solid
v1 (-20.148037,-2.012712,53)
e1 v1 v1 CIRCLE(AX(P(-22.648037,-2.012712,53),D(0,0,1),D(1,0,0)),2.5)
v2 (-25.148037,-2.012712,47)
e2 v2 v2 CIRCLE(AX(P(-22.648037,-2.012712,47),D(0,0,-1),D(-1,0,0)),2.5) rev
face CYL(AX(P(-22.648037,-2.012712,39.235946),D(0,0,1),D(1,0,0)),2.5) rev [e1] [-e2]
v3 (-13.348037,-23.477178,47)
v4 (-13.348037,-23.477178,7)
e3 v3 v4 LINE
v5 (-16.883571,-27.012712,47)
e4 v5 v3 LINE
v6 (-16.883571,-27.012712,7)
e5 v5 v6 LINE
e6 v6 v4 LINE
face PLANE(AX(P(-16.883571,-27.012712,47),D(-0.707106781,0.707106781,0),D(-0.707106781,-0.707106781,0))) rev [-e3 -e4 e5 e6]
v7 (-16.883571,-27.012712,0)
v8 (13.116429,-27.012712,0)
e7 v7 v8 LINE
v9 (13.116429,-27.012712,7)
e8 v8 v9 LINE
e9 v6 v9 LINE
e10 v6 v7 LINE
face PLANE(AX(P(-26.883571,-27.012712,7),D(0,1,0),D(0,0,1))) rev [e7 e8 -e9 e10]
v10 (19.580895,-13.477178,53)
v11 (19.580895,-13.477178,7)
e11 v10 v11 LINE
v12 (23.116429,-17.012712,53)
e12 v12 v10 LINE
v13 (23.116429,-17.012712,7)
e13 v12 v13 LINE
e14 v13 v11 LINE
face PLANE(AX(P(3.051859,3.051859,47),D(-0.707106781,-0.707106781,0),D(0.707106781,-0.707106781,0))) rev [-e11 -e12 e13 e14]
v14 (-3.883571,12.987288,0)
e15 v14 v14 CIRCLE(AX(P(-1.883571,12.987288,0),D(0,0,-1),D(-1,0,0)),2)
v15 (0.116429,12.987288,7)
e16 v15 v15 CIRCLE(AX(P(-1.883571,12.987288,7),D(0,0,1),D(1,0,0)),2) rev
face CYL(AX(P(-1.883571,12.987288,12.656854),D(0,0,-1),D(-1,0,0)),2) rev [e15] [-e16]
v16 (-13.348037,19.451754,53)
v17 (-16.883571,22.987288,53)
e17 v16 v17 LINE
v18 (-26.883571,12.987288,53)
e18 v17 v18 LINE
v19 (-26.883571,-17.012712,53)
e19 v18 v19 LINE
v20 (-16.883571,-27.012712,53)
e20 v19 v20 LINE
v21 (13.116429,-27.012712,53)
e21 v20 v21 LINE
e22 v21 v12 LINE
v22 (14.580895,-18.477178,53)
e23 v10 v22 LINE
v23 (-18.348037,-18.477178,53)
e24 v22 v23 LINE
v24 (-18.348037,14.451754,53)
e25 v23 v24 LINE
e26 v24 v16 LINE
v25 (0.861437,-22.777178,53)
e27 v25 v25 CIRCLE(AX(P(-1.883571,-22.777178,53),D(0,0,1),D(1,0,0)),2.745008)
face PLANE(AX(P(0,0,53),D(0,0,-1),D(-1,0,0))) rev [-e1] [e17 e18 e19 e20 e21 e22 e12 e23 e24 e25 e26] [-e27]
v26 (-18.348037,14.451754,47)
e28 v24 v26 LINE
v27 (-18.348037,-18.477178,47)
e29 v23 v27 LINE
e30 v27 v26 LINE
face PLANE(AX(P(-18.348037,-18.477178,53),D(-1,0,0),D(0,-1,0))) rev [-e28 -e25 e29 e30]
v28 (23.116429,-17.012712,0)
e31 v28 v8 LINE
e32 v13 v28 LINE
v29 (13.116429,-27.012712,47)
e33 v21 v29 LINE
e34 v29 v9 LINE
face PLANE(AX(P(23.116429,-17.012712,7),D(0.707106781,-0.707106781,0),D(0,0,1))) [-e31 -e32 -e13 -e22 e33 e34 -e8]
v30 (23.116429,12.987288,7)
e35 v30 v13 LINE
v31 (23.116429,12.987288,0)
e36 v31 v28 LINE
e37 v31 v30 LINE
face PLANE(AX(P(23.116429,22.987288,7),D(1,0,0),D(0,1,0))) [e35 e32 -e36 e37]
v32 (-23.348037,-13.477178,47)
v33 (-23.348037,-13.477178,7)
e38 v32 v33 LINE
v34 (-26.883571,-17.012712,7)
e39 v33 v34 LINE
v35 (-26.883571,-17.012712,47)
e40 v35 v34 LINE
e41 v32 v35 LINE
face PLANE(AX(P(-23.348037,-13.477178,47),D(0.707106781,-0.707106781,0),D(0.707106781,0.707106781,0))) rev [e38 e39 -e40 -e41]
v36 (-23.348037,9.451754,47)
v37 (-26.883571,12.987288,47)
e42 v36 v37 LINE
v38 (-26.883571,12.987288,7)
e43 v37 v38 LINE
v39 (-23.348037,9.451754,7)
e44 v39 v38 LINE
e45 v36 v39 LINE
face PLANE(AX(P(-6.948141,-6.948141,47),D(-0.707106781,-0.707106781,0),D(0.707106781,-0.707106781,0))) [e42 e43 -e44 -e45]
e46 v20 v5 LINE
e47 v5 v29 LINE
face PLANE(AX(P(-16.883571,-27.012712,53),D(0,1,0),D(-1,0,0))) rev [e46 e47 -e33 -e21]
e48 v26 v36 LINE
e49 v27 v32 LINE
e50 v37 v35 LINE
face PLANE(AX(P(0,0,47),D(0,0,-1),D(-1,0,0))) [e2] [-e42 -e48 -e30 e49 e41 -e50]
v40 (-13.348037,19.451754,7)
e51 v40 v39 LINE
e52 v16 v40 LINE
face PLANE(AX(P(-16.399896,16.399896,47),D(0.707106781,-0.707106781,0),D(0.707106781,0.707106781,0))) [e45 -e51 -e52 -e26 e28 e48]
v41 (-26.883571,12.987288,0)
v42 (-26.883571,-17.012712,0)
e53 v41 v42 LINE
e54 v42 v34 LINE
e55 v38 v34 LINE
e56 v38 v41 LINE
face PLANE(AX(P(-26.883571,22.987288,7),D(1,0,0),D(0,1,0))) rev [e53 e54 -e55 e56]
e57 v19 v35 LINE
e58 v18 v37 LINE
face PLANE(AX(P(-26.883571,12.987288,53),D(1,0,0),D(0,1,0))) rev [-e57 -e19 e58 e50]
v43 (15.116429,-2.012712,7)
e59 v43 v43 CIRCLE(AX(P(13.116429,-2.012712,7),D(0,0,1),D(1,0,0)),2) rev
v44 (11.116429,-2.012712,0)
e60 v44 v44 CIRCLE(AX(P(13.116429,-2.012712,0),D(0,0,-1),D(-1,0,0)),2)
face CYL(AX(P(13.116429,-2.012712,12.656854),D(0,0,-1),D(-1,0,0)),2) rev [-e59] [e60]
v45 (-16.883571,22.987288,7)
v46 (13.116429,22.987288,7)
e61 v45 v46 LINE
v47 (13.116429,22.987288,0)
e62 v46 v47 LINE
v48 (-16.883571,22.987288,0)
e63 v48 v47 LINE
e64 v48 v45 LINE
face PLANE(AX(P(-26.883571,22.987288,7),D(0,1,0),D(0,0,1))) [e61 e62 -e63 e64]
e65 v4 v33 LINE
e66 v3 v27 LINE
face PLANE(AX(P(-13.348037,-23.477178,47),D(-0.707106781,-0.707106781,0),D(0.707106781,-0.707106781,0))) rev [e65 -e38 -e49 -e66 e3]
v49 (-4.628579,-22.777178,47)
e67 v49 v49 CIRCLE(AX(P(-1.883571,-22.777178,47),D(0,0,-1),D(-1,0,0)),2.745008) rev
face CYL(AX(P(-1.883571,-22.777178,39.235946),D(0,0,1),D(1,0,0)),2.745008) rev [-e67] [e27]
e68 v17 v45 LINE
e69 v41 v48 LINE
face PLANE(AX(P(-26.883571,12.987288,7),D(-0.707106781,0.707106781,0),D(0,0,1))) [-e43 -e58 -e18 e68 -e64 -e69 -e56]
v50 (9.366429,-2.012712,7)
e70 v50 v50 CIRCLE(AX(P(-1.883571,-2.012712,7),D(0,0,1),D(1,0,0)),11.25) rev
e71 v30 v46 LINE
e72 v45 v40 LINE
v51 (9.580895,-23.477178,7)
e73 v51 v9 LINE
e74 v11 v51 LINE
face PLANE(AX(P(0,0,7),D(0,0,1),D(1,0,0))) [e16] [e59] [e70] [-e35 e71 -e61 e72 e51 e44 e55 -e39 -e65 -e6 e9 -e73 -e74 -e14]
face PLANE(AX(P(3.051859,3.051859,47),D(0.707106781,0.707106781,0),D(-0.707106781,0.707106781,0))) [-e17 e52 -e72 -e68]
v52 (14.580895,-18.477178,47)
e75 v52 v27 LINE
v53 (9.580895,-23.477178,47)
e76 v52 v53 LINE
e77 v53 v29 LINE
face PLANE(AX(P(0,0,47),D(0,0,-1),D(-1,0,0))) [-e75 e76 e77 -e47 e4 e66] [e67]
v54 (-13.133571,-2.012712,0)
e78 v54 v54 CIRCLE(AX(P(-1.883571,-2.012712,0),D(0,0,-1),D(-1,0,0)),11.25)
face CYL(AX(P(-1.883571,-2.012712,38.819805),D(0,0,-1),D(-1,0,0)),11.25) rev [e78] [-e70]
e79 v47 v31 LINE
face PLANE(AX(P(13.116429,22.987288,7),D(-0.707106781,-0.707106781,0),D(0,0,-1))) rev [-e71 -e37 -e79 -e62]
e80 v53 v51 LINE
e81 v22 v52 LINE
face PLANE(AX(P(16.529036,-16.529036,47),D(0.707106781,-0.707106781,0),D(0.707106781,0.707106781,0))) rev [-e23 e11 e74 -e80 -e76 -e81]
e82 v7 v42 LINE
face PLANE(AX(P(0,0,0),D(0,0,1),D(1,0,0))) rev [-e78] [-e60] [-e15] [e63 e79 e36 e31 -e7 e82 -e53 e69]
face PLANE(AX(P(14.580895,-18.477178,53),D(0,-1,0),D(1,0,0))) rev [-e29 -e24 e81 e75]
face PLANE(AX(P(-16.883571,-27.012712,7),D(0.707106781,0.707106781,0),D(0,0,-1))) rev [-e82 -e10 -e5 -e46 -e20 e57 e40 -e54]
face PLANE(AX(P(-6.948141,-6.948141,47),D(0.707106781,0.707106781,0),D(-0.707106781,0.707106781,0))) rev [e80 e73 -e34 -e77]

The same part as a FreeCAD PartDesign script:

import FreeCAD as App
import Part
import Sketcher
Q = App.Units.Quantity


def edges_at(feature, points):
    """Names of the edges that pass closest to the given points."""
    edges = feature.Shape.Edges
    near = lambda p: min(range(len(edges)), key=lambda i: edges[i].distToShape(Part.Vertex(*p))[0])
    return sorted({f"Edge{near(p) + 1}" for p in points})


def add_polygon(sketch, points):
    """Adds a closed chain of lines whose ends are joined by coincident constraints."""
    first, n = sketch.GeometryCount, len(points)
    for a, b in zip(points, points[1:] + points[:1]):
        sketch.addGeometry(Part.LineSegment(App.Vector(*a, 0), App.Vector(*b, 0)), False)
    for i in range(n):
        sketch.addConstraint(Sketcher.Constraint("Coincident", first + i, 2, first + (i + 1) % n, 1))

doc = App.newDocument("Part")
params = doc.addObject("Spreadsheet::Sheet", "Params")
for row, (alias, value) in enumerate([
    ("sketch1_width", "50 mm"),
    ("pad1_length", "7 mm"),
    ("chamfer_size", "10 mm"),
    ("sketch2_length", "5 mm"),
    ("pad2_length", "40 mm"),
    ("sketch3_width", "30 mm"),
    ("sketch3_length", "5 mm"),
    ("pad3_length", "6 mm"),
    ("sketch4_diameter", "22.5 mm"),
    ("pocket1_length", "7 mm"),
    ("sketch5_diameter", "5 mm"),
    ("pocket2_length", "6 mm"),
    ("sketch6_diameter", "4 mm"),
    ("pocket3_length", "7 mm"),
], start=1):
    params.set(f"A{row}", alias)
    params.set(f"B{row}", "=" + value)
    params.setAlias(f"B{row}", alias)

body = doc.addObject("PartDesign::Body", "Body")

# Sketch on XY plane
sketch1 = body.newObject("Sketcher::SketchObject", "Sketch")
sketch1.AttachmentSupport = (doc.getObject("XY_Plane"), [""])
sketch1.MapMode = "FlatFace"
add_polygon(sketch1, [(-26.883571, 22.987288), (-26.883571, -27.012712), (23.116429, -27.012712), (23.116429, 22.987288)])  # lines 0-3
sketch1.addConstraint([
    Sketcher.Constraint("Vertical", 0),
    Sketcher.Constraint("Horizontal", 1),
    Sketcher.Constraint("Vertical", 2),
    Sketcher.Constraint("Horizontal", 3),
    Sketcher.Constraint("Equal", 3, 0),
    Sketcher.Constraint("DistanceX", 1, 1, 1, 2, Q("50 mm")),
    Sketcher.Constraint("DistanceX", 0, 2, -1, 1, Q("26.883571 mm")),
    Sketcher.Constraint("DistanceY", 0, 2, -1, 1, Q("27.012712 mm")),
])
sketch1.setExpression("Constraints[9]", "Params.sketch1_width")
pad1 = body.newObject("PartDesign::Pad", "Pad")
pad1.Profile = sketch1
pad1.setExpression("Length", "Params.pad1_length")
doc.recompute()

chamfer = body.newObject("PartDesign::Chamfer", "Chamfer")
chamfer.Base = (pad1, edges_at(pad1, [
    (-26.884, 22.987, 3.5),
    (23.116, 22.987, 3.5),
    (23.116, -27.013, 3.5),
    (-26.884, -27.013, 3.5),
]))
chamfer.setExpression("Size", "Params.chamfer_size")

# Sketch on XY plane
sketch2 = body.newObject("Sketcher::SketchObject", "Sketch001")
sketch2.AttachmentSupport = (doc.getObject("XY_Plane"), [""])
sketch2.MapMode = "FlatFace"
sketch2.AttachmentOffset = App.Placement(App.Vector(0, 0, 7), App.Rotation())
add_polygon(sketch2, [(-26.883571, 12.987288), (-23.348037, 9.451754), (-13.348037, 19.451754), (-16.883571, 22.987288)])  # lines 0-3
add_polygon(sketch2, [(19.580895, -13.477178), (9.580895, -23.477178), (13.116429, -27.012712), (23.116429, -17.012712)])  # lines 4-7
add_polygon(sketch2, [(-13.348037, -23.477178), (-23.348037, -13.477178), (-26.883571, -17.012712), (-16.883571, -27.012712)])  # lines 8-11
sketch2.addConstraint([
    Sketcher.Constraint("Perpendicular", 0, 1),
    Sketcher.Constraint("Perpendicular", 1, 2),
    Sketcher.Constraint("Perpendicular", 2, 3),
    Sketcher.Constraint("Parallel", 3, 4),
    Sketcher.Constraint("Perpendicular", 4, 5),
    Sketcher.Constraint("Perpendicular", 5, 6),
    Sketcher.Constraint("Perpendicular", 6, 7),
    Sketcher.Constraint("Parallel", 7, 8),
    Sketcher.Constraint("Perpendicular", 8, 9),
    Sketcher.Constraint("Perpendicular", 9, 10),
    Sketcher.Constraint("Perpendicular", 10, 11),
    Sketcher.Constraint("Horizontal", 7, 2, 8, 2),
    Sketcher.Constraint("Horizontal", 6, 2, 9, 2),
    Sketcher.Constraint("Horizontal", 5, 2, 10, 2),
    Sketcher.Constraint("Vertical", 0, 2, 8, 2),
    Sketcher.Constraint("Vertical", 3, 2, 9, 2),
    Sketcher.Constraint("Vertical", 2, 2, 10, 2),
    Sketcher.Constraint("Equal", 3, 4),
    Sketcher.Constraint("Distance", 0, Q("5 mm")),
    Sketcher.Constraint("DistanceX", 0, 2, 1, 2, Q("10 mm")),
    Sketcher.Constraint("DistanceX", 3, 2, 5, 2, Q("40 mm")),
    Sketcher.Constraint("DistanceY", 5, 2, 3, 2, Q("40 mm")),
    Sketcher.Constraint("DistanceX", 2, 2, -1, 1, Q("16.883571 mm")),
    Sketcher.Constraint("DistanceY", -1, 1, 2, 2, Q("22.987288 mm")),
])
sketch2.setExpression("Constraints[30]", "Params.sketch2_length")
pad2 = body.newObject("PartDesign::Pad", "Pad001")
pad2.Profile = sketch2
pad2.setExpression("Length", "Params.pad2_length")

# Sketch on XY plane
sketch3 = body.newObject("Sketcher::SketchObject", "Sketch002")
sketch3.AttachmentSupport = (doc.getObject("XY_Plane"), [""])
sketch3.MapMode = "FlatFace"
sketch3.AttachmentOffset = App.Placement(App.Vector(0, 0, 47), App.Rotation())
add_polygon(sketch3, [(-18.348037, 14.451754), (-13.348037, 19.451754), (-16.883571, 22.987288), (-26.883571, 12.987288), (-26.883571, -17.012712), (-16.883571, -27.012712), (13.116429, -27.012712), (23.116429, -17.012712), (19.580895, -13.477178), (14.580895, -18.477178), (-18.348037, -18.477178)])  # lines 0-10
sketch3.addConstraint([
    Sketcher.Constraint("Vertical", 3),
    Sketcher.Constraint("Horizontal", 5),
    Sketcher.Constraint("Horizontal", 9),
    Sketcher.Constraint("Vertical", 10),
    Sketcher.Constraint("Perpendicular", 0, 1),
    Sketcher.Constraint("Perpendicular", 1, 2),
    Sketcher.Constraint("Perpendicular", 2, 4),
    Sketcher.Constraint("Perpendicular", 4, 6),
    Sketcher.Constraint("Perpendicular", 6, 7),
    Sketcher.Constraint("Perpendicular", 7, 8),
    Sketcher.Constraint("Horizontal", 3, 2, 6, 2),
    Sketcher.Constraint("Vertical", 1, 2, 4, 2),
    Sketcher.Constraint("Equal", 5, 3),
    Sketcher.Constraint("Equal", 9, 10),
    Sketcher.Constraint("Equal", 2, 4),
    Sketcher.Constraint("Equal", 1, 7),
    Sketcher.Constraint("DistanceX", 5, 1, 5, 2, Q("30 mm")),
    Sketcher.Constraint("Distance", 1, Q("5 mm")),
    Sketcher.Constraint("DistanceX", 2, 2, 1, 2, Q("10 mm")),
    Sketcher.Constraint("DistanceX", 8, 2, 7, 2, Q("5 mm")),
    Sketcher.Constraint("DistanceX", 1, 2, -1, 1, Q("16.883571 mm")),
    Sketcher.Constraint("DistanceY", -1, 1, 1, 2, Q("22.987288 mm")),
])
sketch3.setExpression("Constraints[27]", "Params.sketch3_width")
sketch3.setExpression("Constraints[28]", "Params.sketch3_length")
pad3 = body.newObject("PartDesign::Pad", "Pad002")
pad3.Profile = sketch3
pad3.setExpression("Length", "Params.pad3_length")

# Sketch on XY plane
sketch4 = body.newObject("Sketcher::SketchObject", "Sketch003")
sketch4.AttachmentSupport = (doc.getObject("XY_Plane"), [""])
sketch4.MapMode = "FlatFace"
sketch4.addGeometry(Part.Circle(App.Vector(-1.883571, -2.012712, 0), App.Vector(0, 0, 1), 11.25), False)
sketch4.addConstraint([
    Sketcher.Constraint("Diameter", 0, Q("22.5 mm")),
    Sketcher.Constraint("DistanceX", 0, 3, -1, 1, Q("1.883571 mm")),
    Sketcher.Constraint("DistanceY", 0, 3, -1, 1, Q("2.012712 mm")),
])
sketch4.setExpression("Constraints[0]", "Params.sketch4_diameter")
pocket1 = body.newObject("PartDesign::Pocket", "Pocket")
pocket1.Profile = sketch4
pocket1.setExpression("Length", "Params.pocket1_length")
pocket1.Reversed = True

# Sketch on XY plane
sketch5 = body.newObject("Sketcher::SketchObject", "Sketch004")
sketch5.AttachmentSupport = (doc.getObject("XY_Plane"), [""])
sketch5.MapMode = "FlatFace"
sketch5.AttachmentOffset = App.Placement(App.Vector(0, 0, 53), App.Rotation())
sketch5.addGeometry([
    Part.Circle(App.Vector(-22.648037, -2.012712, 0), App.Vector(0, 0, 1), 2.5),
    Part.Circle(App.Vector(-1.883571, -22.777178, 0), App.Vector(0, 0, 1), 2.745008),
], False)
sketch5.addConstraint([
    Sketcher.Constraint("Diameter", 0, Q("5 mm")),
    Sketcher.Constraint("Diameter", 1, Q("5.490015 mm")),
    Sketcher.Constraint("DistanceY", 0, 3, -1, 1, Q("2.012712 mm")),
    Sketcher.Constraint("DistanceX", 1, 3, -1, 1, Q("1.883571 mm")),
    Sketcher.Constraint("DistanceX", 0, 3, -1, 1, Q("22.648037 mm")),
    Sketcher.Constraint("DistanceY", 1, 3, -1, 1, Q("22.777178 mm")),
])
sketch5.setExpression("Constraints[0]", "Params.sketch5_diameter")
pocket2 = body.newObject("PartDesign::Pocket", "Pocket001")
pocket2.Profile = sketch5
pocket2.setExpression("Length", "Params.pocket2_length")

# Sketch on XY plane
sketch6 = body.newObject("Sketcher::SketchObject", "Sketch005")
sketch6.AttachmentSupport = (doc.getObject("XY_Plane"), [""])
sketch6.MapMode = "FlatFace"
sketch6.addGeometry([
    Part.Circle(App.Vector(-1.883571, 12.987288, 0), App.Vector(0, 0, 1), 2),
    Part.Circle(App.Vector(13.116429, -2.012712, 0), App.Vector(0, 0, 1), 2),
], False)
sketch6.addConstraint([
    Sketcher.Constraint("Equal", 0, 1),
    Sketcher.Constraint("Diameter", 0, Q("4 mm")),
    Sketcher.Constraint("DistanceX", 0, 3, 1, 3, Q("15 mm")),
    Sketcher.Constraint("DistanceY", 1, 3, 0, 3, Q("15 mm")),
    Sketcher.Constraint("DistanceX", 0, 3, -1, 1, Q("1.883571 mm")),
    Sketcher.Constraint("DistanceY", -1, 1, 0, 3, Q("12.987288 mm")),
])
sketch6.setExpression("Constraints[1]", "Params.sketch6_diameter")
pocket3 = body.newObject("PartDesign::Pocket", "Pocket002")
pocket3.Profile = sketch6
pocket3.setExpression("Length", "Params.pocket3_length")
pocket3.Reversed = True

doc.recompute()
